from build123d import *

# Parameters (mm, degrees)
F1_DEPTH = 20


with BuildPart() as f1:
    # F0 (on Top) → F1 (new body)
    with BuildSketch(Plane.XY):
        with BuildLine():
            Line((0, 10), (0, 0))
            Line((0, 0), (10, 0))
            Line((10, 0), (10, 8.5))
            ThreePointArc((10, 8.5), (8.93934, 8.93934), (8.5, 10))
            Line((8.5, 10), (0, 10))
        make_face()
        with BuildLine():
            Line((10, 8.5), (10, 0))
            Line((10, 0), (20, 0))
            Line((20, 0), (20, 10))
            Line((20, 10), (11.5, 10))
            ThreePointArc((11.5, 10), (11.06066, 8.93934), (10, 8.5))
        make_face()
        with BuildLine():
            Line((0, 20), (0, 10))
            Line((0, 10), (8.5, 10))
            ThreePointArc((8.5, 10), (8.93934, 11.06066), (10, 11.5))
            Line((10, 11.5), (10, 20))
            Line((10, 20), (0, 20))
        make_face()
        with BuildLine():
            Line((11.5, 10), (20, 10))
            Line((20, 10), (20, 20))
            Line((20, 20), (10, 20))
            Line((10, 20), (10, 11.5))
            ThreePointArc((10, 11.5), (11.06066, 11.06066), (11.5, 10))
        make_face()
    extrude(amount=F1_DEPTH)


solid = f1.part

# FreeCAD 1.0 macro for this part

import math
import FreeCAD as App
import Part
import Sketcher
from FreeCAD import Vector


def add_polygon(sketch, points):
    """Adds a closed chain of lines whose ends are joined by coincident constraints."""
    first, n = sketch.GeometryCount, len(points)
    for a, b in zip(points, points[1:] + points[:1]):
        sketch.addGeometry(Part.LineSegment(App.Vector(*a, 0), App.Vector(*b, 0)), False)
    for i in range(n):
        sketch.addConstraint(Sketcher.Constraint("Coincident", first + i, 2, first + (i + 1) % n, 1))

doc = App.newDocument("Part")
body = doc.addObject("PartDesign::Body", "Body")

# Sketch on XY plane
sketch1 = doc.addObject("Sketcher::SketchObject", "Sketch")
body.addObject(sketch1)
sketch1.AttachmentSupport = (doc.XY_Plane, [""])
sketch1.MapMode = "FlatFace"
add_polygon(sketch1, [(0, 0), (20, 0), (20, 20), (0, 20)])  # lines 0-3
sketch1.addGeometry(Part.ArcOfCircle(Part.Circle(Vector(9.999999, 10.000001, 0), Vector(0, 0, 1), 1.500001), math.radians(-89.999978), math.radians(-0.000022)), False)  # 4
sketch1.addGeometry(Part.ArcOfCircle(Part.Circle(Vector(10.000001, 10.000001, 0), Vector(0, 0, 1), 1.500001), math.radians(-179.999978), math.radians(-90.000022)), False)  # 5
sketch1.addGeometry(Part.ArcOfCircle(Part.Circle(Vector(10.000001, 9.999999, 0), Vector(0, 0, 1), 1.500001), math.radians(90.000022), math.radians(179.999978)), False)  # 6
sketch1.addGeometry(Part.ArcOfCircle(Part.Circle(Vector(9.999999, 9.999999, 0), Vector(0, 0, 1), 1.500001), math.radians(0.000022), math.radians(89.999978)), False)  # 7
sketch1.addConstraint([
    Sketcher.Constraint("Tangent", 4, 1, 5, 2),
    Sketcher.Constraint("Tangent", 5, 1, 6, 2),
    Sketcher.Constraint("Tangent", 6, 1, 7, 2),
    Sketcher.Constraint("Tangent", 7, 1, 4, 2),
    Sketcher.Constraint("Horizontal", 0),
    Sketcher.Constraint("Vertical", 1),
    Sketcher.Constraint("Horizontal", 2),
    Sketcher.Constraint("Vertical", 3),
    Sketcher.Constraint("Coincident", 3, 2, -1, 1),
    Sketcher.Constraint("Equal", 4, 5),
    Sketcher.Constraint("Horizontal", 7, 3, 5, 1),
    Sketcher.Constraint("Horizontal", 5, 1, 7, 1),
    Sketcher.Constraint("Vertical", 7, 3, 4, 1),
    Sketcher.Constraint("Vertical", 4, 1, 6, 1),
    Sketcher.Constraint("Equal", 2, 1),
    Sketcher.Constraint("Radius", 4, 1.500001),
    Sketcher.Constraint("DistanceX", 0, 1, 0, 2, 20.0),
    Sketcher.Constraint("DistanceX", -1, 1, 4, 3, 9.999999),
    Sketcher.Constraint("DistanceY", -1, 1, 4, 3, 10.000001),
])
pad1 = doc.addObject("PartDesign::Pad", "Pad")
body.addObject(pad1)
pad1.Profile = sketch1
pad1.Length = 20

doc.recompute()
